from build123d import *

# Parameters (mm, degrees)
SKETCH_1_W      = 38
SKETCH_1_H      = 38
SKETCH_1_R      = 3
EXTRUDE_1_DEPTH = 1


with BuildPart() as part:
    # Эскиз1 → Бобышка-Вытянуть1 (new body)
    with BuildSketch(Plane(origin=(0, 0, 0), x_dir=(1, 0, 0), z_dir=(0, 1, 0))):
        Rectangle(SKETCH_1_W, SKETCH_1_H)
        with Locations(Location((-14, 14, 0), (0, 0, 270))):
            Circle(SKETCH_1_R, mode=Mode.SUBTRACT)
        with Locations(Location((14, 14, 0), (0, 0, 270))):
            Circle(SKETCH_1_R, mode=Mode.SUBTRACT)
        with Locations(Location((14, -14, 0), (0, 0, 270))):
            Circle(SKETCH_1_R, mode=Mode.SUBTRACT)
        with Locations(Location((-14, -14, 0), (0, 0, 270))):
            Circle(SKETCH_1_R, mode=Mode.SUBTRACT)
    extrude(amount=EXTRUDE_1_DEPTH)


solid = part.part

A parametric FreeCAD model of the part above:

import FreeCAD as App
import Part
import Sketcher
from FreeCAD import Vector

doc = App.newDocument("Part")
body = doc.addObject("PartDesign::Body", "Body")

# Sketch on XZ plane
sketch1 = body.newObject("Sketcher::SketchObject", "Sketch")
sketch1.AttachmentSupport = (doc.getObject("XZ_Plane"), [""])
sketch1.MapMode = "FlatFace"
sketch1.addGeometry([
    Part.LineSegment(Vector(-19, -19, 0), Vector(-19, 19, 0)),  # 0
    Part.LineSegment(Vector(-19, 19, 0), Vector(19, 19, 0)),  # 1
    Part.LineSegment(Vector(19, 19, 0), Vector(19, -19, 0)),  # 2
    Part.LineSegment(Vector(19, -19, 0), Vector(-19, -19, 0)),  # 3
    Part.Circle(Vector(-14, 14, 0), Vector(0, 0, 1), 3),  # 4
    Part.Circle(Vector(14, 14, 0), Vector(0, 0, 1), 3),  # 5
    Part.Circle(Vector(-14, -14, 0), Vector(0, 0, 1), 3),  # 6
    Part.Circle(Vector(14, -14, 0), Vector(0, 0, 1), 3),  # 7
], False)
sketch1.addConstraint([
    Sketcher.Constraint("Coincident", 0, 2, 1, 1),
    Sketcher.Constraint("Coincident", 1, 2, 2, 1),
    Sketcher.Constraint("Coincident", 2, 2, 3, 1),
    Sketcher.Constraint("Coincident", 3, 2, 0, 1),
    Sketcher.Constraint("Vertical", 0),
    Sketcher.Constraint("Horizontal", 1),
    Sketcher.Constraint("Vertical", 2),
    Sketcher.Constraint("Horizontal", 3),
    Sketcher.Constraint("Equal", 4, 5),
    Sketcher.Constraint("Equal", 5, 6),
    Sketcher.Constraint("Equal", 6, 7),
    Sketcher.Constraint("Symmetric", 5, 3, 6, 3, -1, 1),
    Sketcher.Constraint("Symmetric", 4, 3, 7, 3, -1, 1),
    Sketcher.Constraint("Symmetric", 0, 2, 2, 2, -1, 1),
    Sketcher.Constraint("Symmetric", 4, 3, 5, 3, -2),
    Sketcher.Constraint("Equal", 3, 0),
    Sketcher.Constraint("Diameter", 4, 6.0),
    Sketcher.Constraint("DistanceX", 1, 1, 1, 2, 38.0),
    Sketcher.Constraint("DistanceX", 4, 3, -1, 1, 14.0),
    Sketcher.Constraint("DistanceY", -1, 1, 4, 3, 14.0),
])
pad1 = body.newObject("PartDesign::Pad", "Pad")
pad1.Profile = sketch1
pad1.Length = 1
pad1.Reversed = True

doc.recompute()
